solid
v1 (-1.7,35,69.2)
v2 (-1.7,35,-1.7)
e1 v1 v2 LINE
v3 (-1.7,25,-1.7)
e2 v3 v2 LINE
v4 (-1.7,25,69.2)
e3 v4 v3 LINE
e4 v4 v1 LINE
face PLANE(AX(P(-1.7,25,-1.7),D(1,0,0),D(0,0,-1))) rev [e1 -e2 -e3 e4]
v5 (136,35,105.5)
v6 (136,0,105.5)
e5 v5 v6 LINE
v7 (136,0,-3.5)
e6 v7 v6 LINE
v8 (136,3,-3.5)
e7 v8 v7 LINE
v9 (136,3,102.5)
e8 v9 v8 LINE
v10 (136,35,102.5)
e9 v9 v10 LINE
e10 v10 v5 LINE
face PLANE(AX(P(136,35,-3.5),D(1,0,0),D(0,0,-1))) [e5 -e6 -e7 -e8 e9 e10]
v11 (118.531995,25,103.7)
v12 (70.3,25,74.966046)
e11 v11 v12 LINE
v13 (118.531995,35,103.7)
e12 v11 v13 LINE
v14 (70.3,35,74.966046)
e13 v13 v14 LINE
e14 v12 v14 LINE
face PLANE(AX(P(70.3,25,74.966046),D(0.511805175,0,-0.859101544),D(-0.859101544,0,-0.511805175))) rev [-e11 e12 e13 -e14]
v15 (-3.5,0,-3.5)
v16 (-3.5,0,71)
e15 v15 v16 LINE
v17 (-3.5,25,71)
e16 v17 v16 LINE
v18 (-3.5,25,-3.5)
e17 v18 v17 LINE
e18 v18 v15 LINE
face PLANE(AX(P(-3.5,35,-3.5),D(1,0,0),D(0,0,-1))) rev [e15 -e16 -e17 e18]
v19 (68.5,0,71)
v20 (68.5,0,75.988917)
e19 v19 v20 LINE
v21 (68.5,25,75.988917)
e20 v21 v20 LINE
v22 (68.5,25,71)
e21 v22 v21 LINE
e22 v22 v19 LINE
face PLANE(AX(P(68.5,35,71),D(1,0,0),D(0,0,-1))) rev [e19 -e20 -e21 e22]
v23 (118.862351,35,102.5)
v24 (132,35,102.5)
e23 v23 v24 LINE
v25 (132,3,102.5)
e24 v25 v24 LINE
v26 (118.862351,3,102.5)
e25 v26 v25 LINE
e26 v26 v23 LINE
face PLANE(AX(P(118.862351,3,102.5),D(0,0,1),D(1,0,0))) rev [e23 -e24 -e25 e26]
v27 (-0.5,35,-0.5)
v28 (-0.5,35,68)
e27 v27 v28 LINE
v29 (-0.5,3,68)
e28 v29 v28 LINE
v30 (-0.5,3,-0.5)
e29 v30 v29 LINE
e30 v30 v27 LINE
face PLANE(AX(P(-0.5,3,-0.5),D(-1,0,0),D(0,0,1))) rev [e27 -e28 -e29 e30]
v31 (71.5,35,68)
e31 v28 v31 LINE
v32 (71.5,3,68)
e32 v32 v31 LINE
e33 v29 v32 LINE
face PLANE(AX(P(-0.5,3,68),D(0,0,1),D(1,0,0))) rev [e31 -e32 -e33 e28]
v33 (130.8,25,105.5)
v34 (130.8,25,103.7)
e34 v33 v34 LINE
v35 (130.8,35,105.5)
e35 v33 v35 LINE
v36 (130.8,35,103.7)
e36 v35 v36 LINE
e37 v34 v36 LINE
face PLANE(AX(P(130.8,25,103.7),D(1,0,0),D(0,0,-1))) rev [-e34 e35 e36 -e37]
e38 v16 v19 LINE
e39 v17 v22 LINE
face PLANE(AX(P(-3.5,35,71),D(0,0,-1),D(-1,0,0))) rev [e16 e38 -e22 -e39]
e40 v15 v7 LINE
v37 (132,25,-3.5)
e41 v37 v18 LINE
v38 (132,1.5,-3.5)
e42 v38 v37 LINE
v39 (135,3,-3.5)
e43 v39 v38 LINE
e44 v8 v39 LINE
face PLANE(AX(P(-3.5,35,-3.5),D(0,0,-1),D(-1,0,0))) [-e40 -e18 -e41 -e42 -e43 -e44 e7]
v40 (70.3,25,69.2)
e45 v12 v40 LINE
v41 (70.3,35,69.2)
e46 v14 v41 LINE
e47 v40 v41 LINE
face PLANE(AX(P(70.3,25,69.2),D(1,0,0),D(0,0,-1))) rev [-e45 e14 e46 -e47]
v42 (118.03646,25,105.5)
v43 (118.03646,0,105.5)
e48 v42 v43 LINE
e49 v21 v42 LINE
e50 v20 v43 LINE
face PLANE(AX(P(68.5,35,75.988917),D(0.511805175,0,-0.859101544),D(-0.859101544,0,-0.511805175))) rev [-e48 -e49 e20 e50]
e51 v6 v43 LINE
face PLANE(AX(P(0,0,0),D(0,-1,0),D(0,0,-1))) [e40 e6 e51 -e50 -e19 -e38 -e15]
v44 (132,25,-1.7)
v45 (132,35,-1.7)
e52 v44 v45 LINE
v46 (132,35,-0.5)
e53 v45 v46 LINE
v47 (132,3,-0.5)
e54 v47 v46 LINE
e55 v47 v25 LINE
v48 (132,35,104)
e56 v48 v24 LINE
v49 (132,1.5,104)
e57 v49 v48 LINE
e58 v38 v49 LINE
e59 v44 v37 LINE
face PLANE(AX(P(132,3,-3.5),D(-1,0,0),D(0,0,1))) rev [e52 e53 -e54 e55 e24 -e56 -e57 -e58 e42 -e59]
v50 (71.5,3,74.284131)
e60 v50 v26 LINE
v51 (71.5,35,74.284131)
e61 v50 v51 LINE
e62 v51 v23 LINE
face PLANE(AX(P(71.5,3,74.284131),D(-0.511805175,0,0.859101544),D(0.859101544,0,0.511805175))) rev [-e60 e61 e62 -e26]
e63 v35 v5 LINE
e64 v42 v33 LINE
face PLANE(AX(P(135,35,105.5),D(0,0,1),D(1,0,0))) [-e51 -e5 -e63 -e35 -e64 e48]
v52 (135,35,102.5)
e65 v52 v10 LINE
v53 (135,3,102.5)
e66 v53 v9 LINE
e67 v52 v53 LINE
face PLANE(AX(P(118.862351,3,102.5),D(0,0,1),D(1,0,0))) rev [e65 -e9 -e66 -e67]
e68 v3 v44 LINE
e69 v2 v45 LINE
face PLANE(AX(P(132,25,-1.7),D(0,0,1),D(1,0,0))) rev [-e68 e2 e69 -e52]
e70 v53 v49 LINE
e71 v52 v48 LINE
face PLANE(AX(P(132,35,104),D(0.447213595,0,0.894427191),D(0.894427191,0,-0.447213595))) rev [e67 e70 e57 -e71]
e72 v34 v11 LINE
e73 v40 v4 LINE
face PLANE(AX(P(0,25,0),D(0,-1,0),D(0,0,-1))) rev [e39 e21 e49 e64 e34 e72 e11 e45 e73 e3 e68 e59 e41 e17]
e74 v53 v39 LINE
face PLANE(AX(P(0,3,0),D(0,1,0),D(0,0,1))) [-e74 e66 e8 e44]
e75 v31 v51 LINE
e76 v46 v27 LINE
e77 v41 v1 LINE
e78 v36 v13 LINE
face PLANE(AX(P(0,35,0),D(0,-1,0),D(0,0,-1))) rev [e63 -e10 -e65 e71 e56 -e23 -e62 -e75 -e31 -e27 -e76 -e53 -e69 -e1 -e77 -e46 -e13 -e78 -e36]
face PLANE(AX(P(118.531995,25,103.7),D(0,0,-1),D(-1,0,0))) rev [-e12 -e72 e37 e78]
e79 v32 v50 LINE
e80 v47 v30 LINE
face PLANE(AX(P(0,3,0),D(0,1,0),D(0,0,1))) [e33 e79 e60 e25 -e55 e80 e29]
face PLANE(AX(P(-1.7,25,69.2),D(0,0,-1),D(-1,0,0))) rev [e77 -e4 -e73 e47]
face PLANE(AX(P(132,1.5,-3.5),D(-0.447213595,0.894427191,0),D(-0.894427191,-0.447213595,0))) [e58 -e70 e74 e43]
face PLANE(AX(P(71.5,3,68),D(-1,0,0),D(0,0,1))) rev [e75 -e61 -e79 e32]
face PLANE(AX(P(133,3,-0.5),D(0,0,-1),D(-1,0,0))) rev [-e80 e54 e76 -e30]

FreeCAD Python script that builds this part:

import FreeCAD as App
import Part
import Sketcher
from FreeCAD import Vector
Q = App.Units.Quantity

doc = App.newDocument("Part")
params = doc.addObject("Spreadsheet::Sheet", "Params")
for row, (alias, value) in enumerate([
    ("sketch1_width", "72 mm"),
    ("sketch1_height", "109 mm"),
    ("sketch1_width2", "139.5 mm"),
    ("sketch1_height2", "74.5 mm"),
    ("pad1_length", "35 mm"),
    ("sketch2_width", "72 mm"),
    ("sketch2_height", "103 mm"),
    ("sketch2_width2", "133.5 mm"),
    ("sketch2_height2", "68.5 mm"),
    ("pocket1_length", "32 mm"),
    ("sketch3_width", "4 mm"),
    ("sketch3_height", "106 mm"),
    ("pocket2_length", "32 mm"),
    ("sketch4_width", "3 mm"),
    ("sketch4_height", "106 mm"),
    ("pocket3_length", "1.5 mm"),
    ("sketch5_width", "3 mm"),
    ("sketch5_height", "33.5 mm"),
    ("pocket4_length", "1.5 mm"),
    ("sketch6_width", "72 mm"),
    ("sketch6_width2", "133.7 mm"),
    ("sketch6_width3", "135.5 mm"),
    ("sketch6_height", "1.8 mm"),
    ("sketch6_height2", "70.9 mm"),
    ("pocket5_length", "10 mm"),
    ("sketch7_width", "3 mm"),
    ("sketch7_height", "1.5 mm"),
    ("pad2_length", "33.5 mm"),
    ("sketch8_width", "3 mm"),
    ("sketch8_height", "1.5 mm"),
    ("pad3_length", "109 mm"),
], start=1):
    params.set(f"A{row}", alias)
    params.set(f"B{row}", "=" + value)
    params.setAlias(f"B{row}", alias)

body = doc.addObject("PartDesign::Body", "Body")

# Sketch on XZ plane
sketch1 = body.newObject("Sketcher::SketchObject", "Sketch")
sketch1.AttachmentSupport = (doc.getObject("XZ_Plane"), [""])
sketch1.MapMode = "FlatFace"
sketch1.addGeometry(Part.LineSegment(Vector(68.5, 75.988917, 0), Vector(118.03646, 105.5, 0)), False)
sketch1.addGeometry(Part.LineSegment(Vector(118.03646, 105.5, 0), Vector(136, 105.5, 0)), False)
sketch1.addGeometry(Part.LineSegment(Vector(136, 105.5, 0), Vector(136, -3.5, 0)), False)
sketch1.addGeometry(Part.LineSegment(Vector(136, -3.5, 0), Vector(-3.5, -3.5, 0)), False)
sketch1.addGeometry(Part.LineSegment(Vector(-3.5, -3.5, 0), Vector(-3.5, 71, 0)), False)
sketch1.addGeometry(Part.LineSegment(Vector(-3.5, 71, 0), Vector(68.5, 71, 0)), False)
sketch1.addGeometry(Part.LineSegment(Vector(68.5, 71, 0), Vector(68.5, 75.988917, 0)), False)
sketch1.addConstraint(Sketcher.Constraint("Coincident", 0, 2, 1, 1))
sketch1.addConstraint(Sketcher.Constraint("Coincident", 1, 2, 2, 1))
sketch1.addConstraint(Sketcher.Constraint("Coincident", 2, 2, 3, 1))
sketch1.addConstraint(Sketcher.Constraint("Coincident", 3, 2, 4, 1))
sketch1.addConstraint(Sketcher.Constraint("Coincident", 4, 2, 5, 1))
sketch1.addConstraint(Sketcher.Constraint("Coincident", 5, 2, 6, 1))
sketch1.addConstraint(Sketcher.Constraint("Coincident", 6, 2, 0, 1))
sketch1.addConstraint(Sketcher.Constraint("Horizontal", 1))
sketch1.addConstraint(Sketcher.Constraint("Vertical", 2))
sketch1.addConstraint(Sketcher.Constraint("Horizontal", 3))
sketch1.addConstraint(Sketcher.Constraint("Vertical", 4))
sketch1.addConstraint(Sketcher.Constraint("Horizontal", 5))
sketch1.addConstraint(Sketcher.Constraint("Vertical", 6))
sketch1.addConstraint(Sketcher.Constraint("DistanceX", 5, 1, 5, 2, Q("72 mm")))
sketch1.addConstraint(Sketcher.Constraint("DistanceY", 2, 2, 2, 1, Q("109 mm")))
sketch1.addConstraint(Sketcher.Constraint("DistanceX", 3, 2, 3, 1, Q("139.5 mm")))
sketch1.addConstraint(Sketcher.Constraint("DistanceY", 4, 1, 4, 2, Q("74.5 mm")))
sketch1.addConstraint(Sketcher.Constraint("DistanceX", -1, 1, 1, 2, Q("136 mm")))
sketch1.addConstraint(Sketcher.Constraint("DistanceY", -1, 1, 4, 2, Q("71 mm")))
sketch1.addConstraint(Sketcher.Constraint("DistanceX", 1, 1, 1, 2, Q("17.96354 mm")))
sketch1.addConstraint(Sketcher.Constraint("DistanceY", 6, 1, 6, 2, Q("4.988917 mm")))
sketch1.setExpression("Constraints[13]", "Params.sketch1_width")
sketch1.setExpression("Constraints[14]", "Params.sketch1_height")
sketch1.setExpression("Constraints[15]", "Params.sketch1_width2")
sketch1.setExpression("Constraints[16]", "Params.sketch1_height2")
pad1 = body.newObject("PartDesign::Pad", "Pad")
pad1.Profile = sketch1
pad1.setExpression("Length", "Params.pad1_length")
pad1.Reversed = True

# Sketch on XZ plane
sketch2 = body.newObject("Sketcher::SketchObject", "Sketch001")
sketch2.AttachmentSupport = (doc.getObject("XZ_Plane"), [""])
sketch2.MapMode = "FlatFace"
sketch2.AttachmentOffset = App.Placement(Vector(0, 0, -35), App.Rotation())
sketch2.addGeometry(Part.LineSegment(Vector(133, -0.5, 0), Vector(-0.5, -0.5, 0)), False)
sketch2.addGeometry(Part.LineSegment(Vector(-0.5, -0.5, 0), Vector(-0.5, 68, 0)), False)
sketch2.addGeometry(Part.LineSegment(Vector(-0.5, 68, 0), Vector(71.5, 68, 0)), False)
sketch2.addGeometry(Part.LineSegment(Vector(71.5, 68, 0), Vector(71.5, 74.284131, 0)), False)
sketch2.addGeometry(Part.LineSegment(Vector(71.5, 74.284131, 0), Vector(118.862351, 102.5, 0)), False)
sketch2.addGeometry(Part.LineSegment(Vector(118.862351, 102.5, 0), Vector(133, 102.5, 0)), False)
sketch2.addGeometry(Part.LineSegment(Vector(133, 102.5, 0), Vector(133, -0.5, 0)), False)
sketch2.addConstraint(Sketcher.Constraint("Coincident", 0, 2, 1, 1))
sketch2.addConstraint(Sketcher.Constraint("Coincident", 1, 2, 2, 1))
sketch2.addConstraint(Sketcher.Constraint("Coincident", 2, 2, 3, 1))
sketch2.addConstraint(Sketcher.Constraint("Coincident", 3, 2, 4, 1))
sketch2.addConstraint(Sketcher.Constraint("Coincident", 4, 2, 5, 1))
sketch2.addConstraint(Sketcher.Constraint("Coincident", 5, 2, 6, 1))
sketch2.addConstraint(Sketcher.Constraint("Coincident", 6, 2, 0, 1))
sketch2.addConstraint(Sketcher.Constraint("Horizontal", 0))
sketch2.addConstraint(Sketcher.Constraint("Vertical", 1))
sketch2.addConstraint(Sketcher.Constraint("Horizontal", 2))
sketch2.addConstraint(Sketcher.Constraint("Vertical", 3))
sketch2.addConstraint(Sketcher.Constraint("Horizontal", 5))
sketch2.addConstraint(Sketcher.Constraint("Vertical", 6))
sketch2.addConstraint(Sketcher.Constraint("DistanceX", 2, 1, 2, 2, Q("72 mm")))
sketch2.addConstraint(Sketcher.Constraint("DistanceY", 6, 2, 6, 1, Q("103 mm")))
sketch2.addConstraint(Sketcher.Constraint("DistanceX", 0, 2, 0, 1, Q("133.5 mm")))
sketch2.addConstraint(Sketcher.Constraint("DistanceY", 1, 1, 1, 2, Q("68.5 mm")))
sketch2.addConstraint(Sketcher.Constraint("DistanceY", -1, 1, 1, 2, Q("68 mm")))
sketch2.addConstraint(Sketcher.Constraint("DistanceX", -1, 1, 5, 2, Q("133 mm")))
sketch2.addConstraint(Sketcher.Constraint("DistanceX", 5, 1, 5, 2, Q("14.137649 mm")))
sketch2.addConstraint(Sketcher.Constraint("DistanceY", 3, 1, 3, 2, Q("6.284131 mm")))
sketch2.setExpression("Constraints[13]", "Params.sketch2_width")
sketch2.setExpression("Constraints[14]", "Params.sketch2_height")
sketch2.setExpression("Constraints[15]", "Params.sketch2_width2")
sketch2.setExpression("Constraints[16]", "Params.sketch2_height2")
pocket1 = body.newObject("PartDesign::Pocket", "Pocket")
pocket1.Profile = sketch2
pocket1.setExpression("Length", "Params.pocket1_length")
pocket1.Reversed = True

# Sketch on XZ plane
sketch3 = body.newObject("Sketcher::SketchObject", "Sketch002")
sketch3.AttachmentSupport = (doc.getObject("XZ_Plane"), [""])
sketch3.MapMode = "FlatFace"
sketch3.AttachmentOffset = App.Placement(Vector(0, 0, -35), App.Rotation())
sketch3.addGeometry(Part.LineSegment(Vector(132, -3.5, 0), Vector(132, 102.5, 0)), False)
sketch3.addGeometry(Part.LineSegment(Vector(132, 102.5, 0), Vector(136, 102.5, 0)), False)
sketch3.addGeometry(Part.LineSegment(Vector(136, 102.5, 0), Vector(136, -3.5, 0)), False)
sketch3.addGeometry(Part.LineSegment(Vector(136, -3.5, 0), Vector(132, -3.5, 0)), False)
sketch3.addConstraint(Sketcher.Constraint("Coincident", 0, 2, 1, 1))
sketch3.addConstraint(Sketcher.Constraint("Coincident", 1, 2, 2, 1))
sketch3.addConstraint(Sketcher.Constraint("Coincident", 2, 2, 3, 1))
sketch3.addConstraint(Sketcher.Constraint("Coincident", 3, 2, 0, 1))
sketch3.addConstraint(Sketcher.Constraint("Vertical", 0))
sketch3.addConstraint(Sketcher.Constraint("Horizontal", 1))
sketch3.addConstraint(Sketcher.Constraint("Vertical", 2))
sketch3.addConstraint(Sketcher.Constraint("Horizontal", 3))
sketch3.addConstraint(Sketcher.Constraint("DistanceX", 1, 1, 1, 2, Q("4 mm")))
sketch3.addConstraint(Sketcher.Constraint("DistanceY", 0, 1, 0, 2, Q("106 mm")))
sketch3.addConstraint(Sketcher.Constraint("DistanceX", -1, 1, 0, 2, Q("132 mm")))
sketch3.addConstraint(Sketcher.Constraint("DistanceY", -1, 1, 0, 2, Q("102.5 mm")))
sketch3.setExpression("Constraints[8]", "Params.sketch3_width")
sketch3.setExpression("Constraints[9]", "Params.sketch3_height")
pocket2 = body.newObject("PartDesign::Pocket", "Pocket001")
pocket2.Profile = sketch3
pocket2.setExpression("Length", "Params.pocket2_length")
pocket2.Reversed = True

# Sketch on XZ plane
sketch4 = body.newObject("Sketcher::SketchObject", "Sketch003")
sketch4.AttachmentSupport = (doc.getObject("XZ_Plane"), [""])
sketch4.MapMode = "FlatFace"
sketch4.AttachmentOffset = App.Placement(Vector(0, 0, -3), App.Rotation())
sketch4.addGeometry(Part.LineSegment(Vector(132, -3.5, 0), Vector(132, 102.5, 0)), False)
sketch4.addGeometry(Part.LineSegment(Vector(132, 102.5, 0), Vector(135, 102.5, 0)), False)
sketch4.addGeometry(Part.LineSegment(Vector(135, 102.5, 0), Vector(135, -3.5, 0)), False)
sketch4.addGeometry(Part.LineSegment(Vector(135, -3.5, 0), Vector(132, -3.5, 0)), False)
sketch4.addConstraint(Sketcher.Constraint("Coincident", 0, 2, 1, 1))
sketch4.addConstraint(Sketcher.Constraint("Coincident", 1, 2, 2, 1))
sketch4.addConstraint(Sketcher.Constraint("Coincident", 2, 2, 3, 1))
sketch4.addConstraint(Sketcher.Constraint("Coincident", 3, 2, 0, 1))
sketch4.addConstraint(Sketcher.Constraint("Vertical", 0))
sketch4.addConstraint(Sketcher.Constraint("Horizontal", 1))
sketch4.addConstraint(Sketcher.Constraint("Vertical", 2))
sketch4.addConstraint(Sketcher.Constraint("Horizontal", 3))
sketch4.addConstraint(Sketcher.Constraint("DistanceX", 1, 1, 1, 2, Q("3 mm")))
sketch4.addConstraint(Sketcher.Constraint("DistanceY", 0, 1, 0, 2, Q("106 mm")))
sketch4.addConstraint(Sketcher.Constraint("DistanceX", -1, 1, 0, 2, Q("132 mm")))
sketch4.addConstraint(Sketcher.Constraint("DistanceY", -1, 1, 0, 2, Q("102.5 mm")))
sketch4.setExpression("Constraints[8]", "Params.sketch4_width")
sketch4.setExpression("Constraints[9]", "Params.sketch4_height")
pocket3 = body.newObject("PartDesign::Pocket", "Pocket002")
pocket3.Profile = sketch4
pocket3.setExpression("Length", "Params.pocket3_length")
pocket3.Reversed = True

# Sketch on XY plane
sketch5 = body.newObject("Sketcher::SketchObject", "Sketch004")
sketch5.AttachmentSupport = (doc.getObject("XY_Plane"), [""])
sketch5.MapMode = "FlatFace"
sketch5.AttachmentOffset = App.Placement(Vector(0, 0, 102.5), App.Rotation())
sketch5.addGeometry(Part.LineSegment(Vector(135, 35, 0), Vector(135, 1.5, 0)), False)
sketch5.addGeometry(Part.LineSegment(Vector(135, 1.5, 0), Vector(132, 1.5, 0)), False)
sketch5.addGeometry(Part.LineSegment(Vector(132, 1.5, 0), Vector(132, 35, 0)), False)
sketch5.addGeometry(Part.LineSegment(Vector(132, 35, 0), Vector(135, 35, 0)), False)
sketch5.addConstraint(Sketcher.Constraint("Coincident", 0, 2, 1, 1))
sketch5.addConstraint(Sketcher.Constraint("Coincident", 1, 2, 2, 1))
sketch5.addConstraint(Sketcher.Constraint("Coincident", 2, 2, 3, 1))
sketch5.addConstraint(Sketcher.Constraint("Coincident", 3, 2, 0, 1))
sketch5.addConstraint(Sketcher.Constraint("Vertical", 0))
sketch5.addConstraint(Sketcher.Constraint("Horizontal", 1))
sketch5.addConstraint(Sketcher.Constraint("Vertical", 2))
sketch5.addConstraint(Sketcher.Constraint("Horizontal", 3))
sketch5.addConstraint(Sketcher.Constraint("DistanceX", 1, 2, 1, 1, Q("3 mm")))
sketch5.addConstraint(Sketcher.Constraint("DistanceY", 0, 2, 0, 1, Q("33.5 mm")))
sketch5.addConstraint(Sketcher.Constraint("DistanceX", -1, 1, 0, 2, Q("135 mm")))
sketch5.addConstraint(Sketcher.Constraint("DistanceY", -1, 1, 2, 2, Q("35 mm")))
sketch5.setExpression("Constraints[8]", "Params.sketch5_width")
sketch5.setExpression("Constraints[9]", "Params.sketch5_height")
pocket4 = body.newObject("PartDesign::Pocket", "Pocket003")
pocket4.Profile = sketch5
pocket4.setExpression("Length", "Params.pocket4_length")
pocket4.Reversed = True

# Sketch on XZ plane
sketch6 = body.newObject("Sketcher::SketchObject", "Sketch005")
sketch6.AttachmentSupport = (doc.getObject("XZ_Plane"), [""])
sketch6.MapMode = "FlatFace"
sketch6.AttachmentOffset = App.Placement(Vector(0, 0, -35), App.Rotation())
sketch6.addGeometry(Part.LineSegment(Vector(118.03646, 105.5, 0), Vector(130.8, 105.5, 0)), False)
sketch6.addGeometry(Part.LineSegment(Vector(130.8, 105.5, 0), Vector(130.8, 103.7, 0)), False)
sketch6.addGeometry(Part.LineSegment(Vector(130.8, 103.7, 0), Vector(118.531995, 103.7, 0)), False)
sketch6.addGeometry(Part.LineSegment(Vector(118.531995, 103.7, 0), Vector(70.3, 74.966046, 0)), False)
sketch6.addGeometry(Part.LineSegment(Vector(70.3, 74.966046, 0), Vector(70.3, 69.2, 0)), False)
sketch6.addGeometry(Part.LineSegment(Vector(70.3, 69.2, 0), Vector(-1.7, 69.2, 0)), False)
sketch6.addGeometry(Part.LineSegment(Vector(-1.7, 69.2, 0), Vector(-1.7, -1.7, 0)), False)
sketch6.addGeometry(Part.LineSegment(Vector(-1.7, -1.7, 0), Vector(132, -1.7, 0)), False)
sketch6.addGeometry(Part.LineSegment(Vector(132, -1.7, 0), Vector(132, -3.5, 0)), False)
sketch6.addGeometry(Part.LineSegment(Vector(132, -3.5, 0), Vector(-3.5, -3.5, 0)), False)
sketch6.addGeometry(Part.LineSegment(Vector(-3.5, -3.5, 0), Vector(-3.5, 71, 0)), False)
sketch6.addGeometry(Part.LineSegment(Vector(-3.5, 71, 0), Vector(68.5, 71, 0)), False)
sketch6.addGeometry(Part.LineSegment(Vector(68.5, 71, 0), Vector(68.5, 75.988917, 0)), False)
sketch6.addGeometry(Part.LineSegment(Vector(68.5, 75.988917, 0), Vector(118.03646, 105.5, 0)), False)
sketch6.addConstraint(Sketcher.Constraint("Coincident", 0, 2, 1, 1))
sketch6.addConstraint(Sketcher.Constraint("Coincident", 1, 2, 2, 1))
sketch6.addConstraint(Sketcher.Constraint("Coincident", 2, 2, 3, 1))
sketch6.addConstraint(Sketcher.Constraint("Coincident", 3, 2, 4, 1))
sketch6.addConstraint(Sketcher.Constraint("Coincident", 4, 2, 5, 1))
sketch6.addConstraint(Sketcher.Constraint("Coincident", 5, 2, 6, 1))
sketch6.addConstraint(Sketcher.Constraint("Coincident", 6, 2, 7, 1))
sketch6.addConstraint(Sketcher.Constraint("Coincident", 7, 2, 8, 1))
sketch6.addConstraint(Sketcher.Constraint("Coincident", 8, 2, 9, 1))
sketch6.addConstraint(Sketcher.Constraint("Coincident", 9, 2, 10, 1))
sketch6.addConstraint(Sketcher.Constraint("Coincident", 10, 2, 11, 1))
sketch6.addConstraint(Sketcher.Constraint("Coincident", 11, 2, 12, 1))
sketch6.addConstraint(Sketcher.Constraint("Coincident", 12, 2, 13, 1))
sketch6.addConstraint(Sketcher.Constraint("Coincident", 13, 2, 0, 1))
sketch6.addConstraint(Sketcher.Constraint("Horizontal", 0))
sketch6.addConstraint(Sketcher.Constraint("Vertical", 1))
sketch6.addConstraint(Sketcher.Constraint("Horizontal", 2))
sketch6.addConstraint(Sketcher.Constraint("Vertical", 4))
sketch6.addConstraint(Sketcher.Constraint("Horizontal", 5))
sketch6.addConstraint(Sketcher.Constraint("Vertical", 6))
sketch6.addConstraint(Sketcher.Constraint("Horizontal", 7))
sketch6.addConstraint(Sketcher.Constraint("Vertical", 8))
sketch6.addConstraint(Sketcher.Constraint("Horizontal", 9))
sketch6.addConstraint(Sketcher.Constraint("Vertical", 10))
sketch6.addConstraint(Sketcher.Constraint("Horizontal", 11))
sketch6.addConstraint(Sketcher.Constraint("Vertical", 12))
sketch6.addConstraint(Sketcher.Constraint("Parallel", 3, 13))
sketch6.addConstraint(Sketcher.Constraint("Equal", 5, 11))
sketch6.addConstraint(Sketcher.Constraint("Equal", 1, 8))
sketch6.addConstraint(Sketcher.Constraint("DistanceX", 5, 2, 5, 1, Q("72 mm")))
sketch6.addConstraint(Sketcher.Constraint("DistanceX", 7, 1, 7, 2, Q("133.7 mm")))
sketch6.addConstraint(Sketcher.Constraint("DistanceX", 9, 2, 9, 1, Q("135.5 mm")))
sketch6.addConstraint(Sketcher.Constraint("DistanceY", 1, 2, 1, 1, Q("1.8 mm")))
sketch6.addConstraint(Sketcher.Constraint("DistanceY", 6, 2, 6, 1, Q("70.9 mm")))
sketch6.addConstraint(Sketcher.Constraint("DistanceY", 10, 1, 10, 2, Q("74.5 mm")))
sketch6.addConstraint(Sketcher.Constraint("DistanceX", -1, 1, 7, 2, Q("132 mm")))
sketch6.addConstraint(Sketcher.Constraint("DistanceY", -1, 1, 10, 2, Q("71 mm")))
sketch6.addConstraint(Sketcher.Constraint("DistanceX", -1, 1, 0, 2, Q("130.8 mm")))
sketch6.addConstraint(Sketcher.Constraint("DistanceY", -1, 1, 0, 2, Q("105.5 mm")))
sketch6.addConstraint(Sketcher.Constraint("DistanceX", 0, 1, 0, 2, Q("12.76354 mm")))
sketch6.addConstraint(Sketcher.Constraint("DistanceX", 2, 2, 2, 1, Q("12.268005 mm")))
sketch6.addConstraint(Sketcher.Constraint("DistanceY", 4, 2, 4, 1, Q("5.766046 mm")))
sketch6.setExpression("Constraints[29]", "Params.sketch6_width")
sketch6.setExpression("Constraints[30]", "Params.sketch6_width2")
sketch6.setExpression("Constraints[31]", "Params.sketch6_width3")
sketch6.setExpression("Constraints[32]", "Params.sketch6_height")
sketch6.setExpression("Constraints[33]", "Params.sketch6_height2")
pocket5 = body.newObject("PartDesign::Pocket", "Pocket004")
pocket5.Profile = sketch6
pocket5.setExpression("Length", "Params.pocket5_length")
pocket5.Reversed = True

# Sketch on XZ plane
sketch7 = body.newObject("Sketcher::SketchObject", "Sketch006")
sketch7.AttachmentSupport = (doc.getObject("XZ_Plane"), [""])
sketch7.MapMode = "FlatFace"
sketch7.AttachmentOffset = App.Placement(Vector(0, 0, -1.5), App.Rotation())
sketch7.addGeometry(Part.LineSegment(Vector(135, 102.5, 0), Vector(132, 104, 0)), False)
sketch7.addGeometry(Part.LineSegment(Vector(132, 104, 0), Vector(135, 104, 0)), False)
sketch7.addGeometry(Part.LineSegment(Vector(135, 104, 0), Vector(135, 102.5, 0)), False)
sketch7.addConstraint(Sketcher.Constraint("Coincident", 0, 2, 1, 1))
sketch7.addConstraint(Sketcher.Constraint("Coincident", 1, 2, 2, 1))
sketch7.addConstraint(Sketcher.Constraint("Coincident", 2, 2, 0, 1))
sketch7.addConstraint(Sketcher.Constraint("Horizontal", 1))
sketch7.addConstraint(Sketcher.Constraint("Vertical", 2))
sketch7.addConstraint(Sketcher.Constraint("DistanceX", 1, 1, 1, 2, Q("3 mm")))
sketch7.addConstraint(Sketcher.Constraint("DistanceY", 2, 2, 2, 1, Q("1.5 mm")))
sketch7.addConstraint(Sketcher.Constraint("DistanceX", -1, 1, 0, 2, Q("132 mm")))
sketch7.addConstraint(Sketcher.Constraint("DistanceY", -1, 1, 0, 2, Q("104 mm")))
sketch7.setExpression("Constraints[5]", "Params.sketch7_width")
sketch7.setExpression("Constraints[6]", "Params.sketch7_height")
pad2 = body.newObject("PartDesign::Pad", "Pad001")
pad2.Profile = sketch7
pad2.setExpression("Length", "Params.pad2_length")
pad2.Reversed = True

# Sketch on XY plane
sketch8 = body.newObject("Sketcher::SketchObject", "Sketch007")
sketch8.AttachmentSupport = (doc.getObject("XY_Plane"), [""])
sketch8.MapMode = "FlatFace"
sketch8.AttachmentOffset = App.Placement(Vector(0, 0, 105.5), App.Rotation())
sketch8.addGeometry(Part.LineSegment(Vector(135, 3, 0), Vector(132, 1.5, 0)), False)
sketch8.addGeometry(Part.LineSegment(Vector(132, 1.5, 0), Vector(135, 1.5, 0)), False)
sketch8.addGeometry(Part.LineSegment(Vector(135, 1.5, 0), Vector(135, 3, 0)), False)
sketch8.addConstraint(Sketcher.Constraint("Coincident", 0, 2, 1, 1))
sketch8.addConstraint(Sketcher.Constraint("Coincident", 1, 2, 2, 1))
sketch8.addConstraint(Sketcher.Constraint("Coincident", 2, 2, 0, 1))
sketch8.addConstraint(Sketcher.Constraint("Horizontal", 1))
sketch8.addConstraint(Sketcher.Constraint("Vertical", 2))
sketch8.addConstraint(Sketcher.Constraint("DistanceX", 1, 1, 1, 2, Q("3 mm")))
sketch8.addConstraint(Sketcher.Constraint("DistanceY", 2, 1, 2, 2, Q("1.5 mm")))
sketch8.addConstraint(Sketcher.Constraint("DistanceX", -1, 1, 0, 2, Q("132 mm")))
sketch8.addConstraint(Sketcher.Constraint("DistanceY", -1, 1, 2, 2, Q("3 mm")))
sketch8.setExpression("Constraints[5]", "Params.sketch8_width")
sketch8.setExpression("Constraints[6]", "Params.sketch8_height")
pad3 = body.newObject("PartDesign::Pad", "Pad002")
pad3.Profile = sketch8
pad3.setExpression("Length", "Params.pad3_length")
pad3.Reversed = True

doc.recompute()
